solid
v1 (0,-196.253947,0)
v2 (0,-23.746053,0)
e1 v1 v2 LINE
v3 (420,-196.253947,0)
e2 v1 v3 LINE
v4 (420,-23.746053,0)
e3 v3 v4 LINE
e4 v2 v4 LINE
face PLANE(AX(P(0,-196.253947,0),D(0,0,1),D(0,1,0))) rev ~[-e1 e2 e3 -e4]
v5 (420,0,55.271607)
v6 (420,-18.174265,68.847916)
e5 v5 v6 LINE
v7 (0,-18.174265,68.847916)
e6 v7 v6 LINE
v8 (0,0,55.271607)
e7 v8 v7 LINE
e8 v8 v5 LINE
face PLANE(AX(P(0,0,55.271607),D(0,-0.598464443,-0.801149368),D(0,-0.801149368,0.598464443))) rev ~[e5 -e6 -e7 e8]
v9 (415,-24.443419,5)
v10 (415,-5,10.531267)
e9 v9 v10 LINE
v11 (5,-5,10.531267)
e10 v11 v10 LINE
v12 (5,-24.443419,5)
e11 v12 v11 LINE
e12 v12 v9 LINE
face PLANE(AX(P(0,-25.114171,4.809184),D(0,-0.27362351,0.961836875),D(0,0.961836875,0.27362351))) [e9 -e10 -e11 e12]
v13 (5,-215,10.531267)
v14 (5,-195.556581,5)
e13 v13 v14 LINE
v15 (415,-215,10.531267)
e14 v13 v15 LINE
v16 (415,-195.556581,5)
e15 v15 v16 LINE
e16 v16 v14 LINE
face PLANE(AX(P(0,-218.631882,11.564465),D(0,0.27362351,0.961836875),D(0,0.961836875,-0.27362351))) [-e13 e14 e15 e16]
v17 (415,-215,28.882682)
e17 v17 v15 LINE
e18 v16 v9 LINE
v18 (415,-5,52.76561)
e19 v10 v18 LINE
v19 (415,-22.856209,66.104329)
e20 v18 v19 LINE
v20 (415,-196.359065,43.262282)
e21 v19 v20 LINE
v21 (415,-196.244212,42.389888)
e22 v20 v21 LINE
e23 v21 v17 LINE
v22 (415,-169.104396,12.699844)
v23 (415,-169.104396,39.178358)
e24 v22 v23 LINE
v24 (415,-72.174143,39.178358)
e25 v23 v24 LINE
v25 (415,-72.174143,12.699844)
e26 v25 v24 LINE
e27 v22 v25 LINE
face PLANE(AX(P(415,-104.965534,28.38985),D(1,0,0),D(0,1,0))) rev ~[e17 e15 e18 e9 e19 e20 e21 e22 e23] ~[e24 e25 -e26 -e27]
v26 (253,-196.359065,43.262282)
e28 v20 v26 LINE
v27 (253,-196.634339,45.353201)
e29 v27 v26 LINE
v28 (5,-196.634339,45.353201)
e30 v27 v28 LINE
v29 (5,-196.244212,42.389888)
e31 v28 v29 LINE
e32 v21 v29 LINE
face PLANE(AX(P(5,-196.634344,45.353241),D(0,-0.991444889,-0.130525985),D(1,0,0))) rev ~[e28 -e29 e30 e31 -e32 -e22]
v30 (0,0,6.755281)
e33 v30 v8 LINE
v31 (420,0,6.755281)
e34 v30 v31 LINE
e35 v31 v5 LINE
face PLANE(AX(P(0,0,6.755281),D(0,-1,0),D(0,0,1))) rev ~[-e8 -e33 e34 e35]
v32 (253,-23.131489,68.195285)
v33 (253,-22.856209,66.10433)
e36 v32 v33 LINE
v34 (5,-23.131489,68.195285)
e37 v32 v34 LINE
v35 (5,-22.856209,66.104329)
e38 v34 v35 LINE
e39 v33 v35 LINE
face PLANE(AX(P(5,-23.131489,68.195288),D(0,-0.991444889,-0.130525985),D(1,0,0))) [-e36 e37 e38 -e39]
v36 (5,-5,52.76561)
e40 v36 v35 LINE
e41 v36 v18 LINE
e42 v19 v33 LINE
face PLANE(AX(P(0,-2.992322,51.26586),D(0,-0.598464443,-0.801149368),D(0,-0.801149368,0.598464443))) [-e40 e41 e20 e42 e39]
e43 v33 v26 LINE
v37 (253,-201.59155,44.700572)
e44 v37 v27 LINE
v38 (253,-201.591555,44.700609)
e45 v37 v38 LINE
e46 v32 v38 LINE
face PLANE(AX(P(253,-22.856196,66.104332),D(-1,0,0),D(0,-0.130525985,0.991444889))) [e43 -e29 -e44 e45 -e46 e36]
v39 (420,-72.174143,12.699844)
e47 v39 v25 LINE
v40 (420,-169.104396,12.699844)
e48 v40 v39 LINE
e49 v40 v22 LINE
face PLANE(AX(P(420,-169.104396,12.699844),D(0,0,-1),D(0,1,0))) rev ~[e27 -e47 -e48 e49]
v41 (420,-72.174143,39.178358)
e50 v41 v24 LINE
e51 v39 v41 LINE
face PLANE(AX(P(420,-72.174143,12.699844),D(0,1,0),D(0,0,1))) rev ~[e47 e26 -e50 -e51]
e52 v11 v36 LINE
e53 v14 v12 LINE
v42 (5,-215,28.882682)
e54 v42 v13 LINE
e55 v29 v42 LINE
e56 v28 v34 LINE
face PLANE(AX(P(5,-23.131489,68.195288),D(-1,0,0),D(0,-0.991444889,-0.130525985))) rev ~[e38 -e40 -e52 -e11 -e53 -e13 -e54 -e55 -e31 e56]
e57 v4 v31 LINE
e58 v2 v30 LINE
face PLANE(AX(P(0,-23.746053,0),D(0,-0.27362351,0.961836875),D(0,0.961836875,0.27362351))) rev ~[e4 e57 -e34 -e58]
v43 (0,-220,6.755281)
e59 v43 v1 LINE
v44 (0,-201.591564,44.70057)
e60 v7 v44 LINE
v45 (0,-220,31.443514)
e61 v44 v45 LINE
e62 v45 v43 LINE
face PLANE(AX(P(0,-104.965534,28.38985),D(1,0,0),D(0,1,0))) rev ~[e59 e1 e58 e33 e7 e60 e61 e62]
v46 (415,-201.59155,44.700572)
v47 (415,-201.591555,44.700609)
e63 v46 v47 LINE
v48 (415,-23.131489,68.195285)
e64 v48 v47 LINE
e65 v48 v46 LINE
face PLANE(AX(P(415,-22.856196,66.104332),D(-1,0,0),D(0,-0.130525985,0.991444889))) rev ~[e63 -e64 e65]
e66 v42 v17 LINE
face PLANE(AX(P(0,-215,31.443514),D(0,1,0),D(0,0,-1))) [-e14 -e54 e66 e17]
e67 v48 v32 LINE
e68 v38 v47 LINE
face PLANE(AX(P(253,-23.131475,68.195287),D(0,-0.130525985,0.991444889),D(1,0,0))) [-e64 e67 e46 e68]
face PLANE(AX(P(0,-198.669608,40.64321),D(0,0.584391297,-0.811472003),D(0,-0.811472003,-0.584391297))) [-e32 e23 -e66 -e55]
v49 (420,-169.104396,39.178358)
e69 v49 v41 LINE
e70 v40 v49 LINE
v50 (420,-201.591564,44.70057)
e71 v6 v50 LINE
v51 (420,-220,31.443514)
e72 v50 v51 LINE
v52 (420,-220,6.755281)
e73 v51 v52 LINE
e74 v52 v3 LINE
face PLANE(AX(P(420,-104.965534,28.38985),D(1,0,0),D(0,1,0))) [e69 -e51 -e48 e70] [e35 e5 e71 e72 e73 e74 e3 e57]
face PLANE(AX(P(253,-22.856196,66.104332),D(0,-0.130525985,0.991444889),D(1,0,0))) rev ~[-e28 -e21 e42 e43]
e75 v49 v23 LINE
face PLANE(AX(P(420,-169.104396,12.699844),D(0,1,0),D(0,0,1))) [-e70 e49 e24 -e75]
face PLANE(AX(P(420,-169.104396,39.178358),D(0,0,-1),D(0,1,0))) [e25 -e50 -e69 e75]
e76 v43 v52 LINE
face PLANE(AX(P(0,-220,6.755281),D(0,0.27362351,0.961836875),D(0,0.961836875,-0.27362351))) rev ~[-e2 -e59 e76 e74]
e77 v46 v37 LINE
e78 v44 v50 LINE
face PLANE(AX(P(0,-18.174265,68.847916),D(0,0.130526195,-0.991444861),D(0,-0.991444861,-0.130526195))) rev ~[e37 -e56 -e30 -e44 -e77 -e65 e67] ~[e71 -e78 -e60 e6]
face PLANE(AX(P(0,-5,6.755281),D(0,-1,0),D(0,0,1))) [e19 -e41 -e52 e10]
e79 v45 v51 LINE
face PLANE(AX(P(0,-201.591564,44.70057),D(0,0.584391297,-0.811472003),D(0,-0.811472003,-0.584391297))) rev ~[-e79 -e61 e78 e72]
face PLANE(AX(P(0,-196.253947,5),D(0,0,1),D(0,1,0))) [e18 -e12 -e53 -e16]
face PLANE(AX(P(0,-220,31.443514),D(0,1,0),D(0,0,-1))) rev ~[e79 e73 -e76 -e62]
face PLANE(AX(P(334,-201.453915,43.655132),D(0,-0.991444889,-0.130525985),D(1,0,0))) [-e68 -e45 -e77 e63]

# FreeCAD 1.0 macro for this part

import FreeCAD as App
import Part
import Sketcher
Q = App.Units.Quantity


def faces_at(feature, points):
    """Names of the faces that lie closest to the given points."""
    faces = feature.Shape.Faces
    near = lambda p: min(range(len(faces)), key=lambda i: faces[i].distToShape(Part.Vertex(*p))[0])
    return sorted({f"Face{near(p) + 1}" for p in points})


def add_polygon(sketch, points):
    """Adds a closed chain of lines whose ends are joined by coincident constraints."""
    first, n = sketch.GeometryCount, len(points)
    for a, b in zip(points, points[1:] + points[:1]):
        sketch.addGeometry(Part.LineSegment(App.Vector(*a, 0), App.Vector(*b, 0)), False)
    for i in range(n):
        sketch.addConstraint(Sketcher.Constraint("Coincident", first + i, 2, first + (i + 1) % n, 1))

doc = App.newDocument("Part")
params = doc.addObject("Spreadsheet::Sheet", "Params")
for row, (alias, value) in enumerate([
    ("sketch1_length", "185 mm"),
    ("pad1_length", "420 mm"),
    ("thickness_wall", "5 mm"),
    ("sketch2_width", "175 mm"),
    ("sketch2_height", "410.000001 mm"),
    ("pocket1_length", "13 mm"),
    ("pocket2_length", "8 mm"),
    ("sketch4_width", "162 mm"),
    ("pad2_length", "180 mm"),
], start=1):
    params.set(f"A{row}", alias)
    params.set(f"B{row}", "=" + value)
    params.setAlias(f"B{row}", alias)

body = doc.addObject("PartDesign::Body", "Body")

# Sketch on YZ plane
sketch1 = doc.addObject("Sketcher::SketchObject", "Sketch")
body.addObject(sketch1)
sketch1.AttachmentSupport = (doc.YZ_Plane, [""])
sketch1.MapMode = "FlatFace"
add_polygon(sketch1, [(-196.253947, 0), (-23.746053, 0), (0, 6.755281), (0, 55.271607), (-18.174265, 68.847916), (-201.591564, 44.70057), (-220, 31.443514), (-220, 6.755281)])  # lines 0-7
sketch1.addConstraint(Sketcher.Constraint("Horizontal", 0))
sketch1.addConstraint(Sketcher.Constraint("Vertical", 2))
sketch1.addConstraint(Sketcher.Constraint("Vertical", 6))
sketch1.addConstraint(Sketcher.Constraint("PointOnObject", 0, 2, -1))
sketch1.addConstraint(Sketcher.Constraint("PointOnObject", 1, 2, -2))
sketch1.addConstraint(Sketcher.Constraint("Horizontal", 1, 2, 6, 2))
sketch1.addConstraint(Sketcher.Constraint("Equal", 3, 5))
sketch1.addConstraint(Sketcher.Constraint("Equal", 1, 7))
sketch1.addConstraint(Sketcher.Constraint("Distance", 4, Q("185 mm")))
sketch1.addConstraint(Sketcher.Constraint("DistanceX", 5, 2, -1, 1, Q("220 mm")))
sketch1.addConstraint(Sketcher.Constraint("Angle", 4, Q("-172.5 deg")))
sketch1.addConstraint(Sketcher.Constraint("Angle", 1, Q("15.880001 deg")))
sketch1.addConstraint(Sketcher.Constraint("Angle", 3, Q("143.24 deg")))
sketch1.addConstraint(Sketcher.Constraint("Angle", 5, Q("-144.24 deg")))
sketch1.addConstraint(Sketcher.Constraint("DistanceX", 0, 1, 0, 2, Q("172.507894 mm")))
sketch1.addConstraint(Sketcher.Constraint("DistanceY", 2, 1, 2, 2, Q("48.516326 mm")))
sketch1.setExpression("Constraints[16]", "Params.sketch1_length")
pad1 = doc.addObject("PartDesign::Pad", "Pad")
body.addObject(pad1)
pad1.Profile = sketch1
pad1.setExpression("Length", "Params.pad1_length")
doc.recompute()

thickness = doc.addObject("PartDesign::Thickness", "Thickness")
body.addObject(thickness)
thickness.Base = (pad1, faces_at(pad1, [(210, -109.883, 56.774)]))
thickness.setExpression("Value", "Params.thickness_wall")
thickness.Reversed = True
thickness.Join = "Intersection"

# Sketch on an angled plane
sketch2 = doc.addObject("Sketcher::SketchObject", "Sketch001")
body.addObject(sketch2)
sketch2.Placement = App.Placement(App.Vector(0, -9.219212, 70.026871), App.Rotation(App.Vector(0, -0.991444889, -0.130525985), App.Vector(1.000000001, 0, 0), App.Vector(0, -0.130525985, 0.991444889), "ZXY"))
add_polygon(sketch2, [(14.032325, 415.000001), (14.032325, 5), (189.032325, 5), (189.032325, 415.000001)])  # lines 0-3
sketch2.addConstraint(Sketcher.Constraint("Vertical", 0))
sketch2.addConstraint(Sketcher.Constraint("Horizontal", 1))
sketch2.addConstraint(Sketcher.Constraint("Vertical", 2))
sketch2.addConstraint(Sketcher.Constraint("Horizontal", 3))
sketch2.addConstraint(Sketcher.Constraint("DistanceX", 1, 1, 1, 2, Q("175 mm")))
sketch2.addConstraint(Sketcher.Constraint("DistanceY", 0, 2, 0, 1, Q("410.000001 mm")))
sketch2.addConstraint(Sketcher.Constraint("DistanceY", -1, 1, 0, 2, Q("5 mm")))
sketch2.addConstraint(Sketcher.Constraint("DistanceX", -1, 1, 0, 2, Q("14.032325 mm")))
sketch2.setExpression("Constraints[8]", "Params.sketch2_width")
sketch2.setExpression("Constraints[9]", "Params.sketch2_height")
pocket1 = doc.addObject("PartDesign::Pocket", "Pocket")
body.addObject(pocket1)
pocket1.Profile = sketch2
pocket1.setExpression("Length", "Params.pocket1_length")

# Sketch on YZ plane
sketch3 = doc.addObject("Sketcher::SketchObject", "Sketch002")
body.addObject(sketch3)
sketch3.AttachmentSupport = (doc.YZ_Plane, [""])
sketch3.MapMode = "FlatFace"
sketch3.AttachmentOffset = App.Placement(App.Vector(0, 0, 420), App.Rotation())
add_polygon(sketch3, [(-169.104396, 39.178358), (-169.104396, 12.699844), (-72.174143, 12.699844), (-72.174143, 39.178358)])  # lines 0-3
sketch3.addConstraint(Sketcher.Constraint("Vertical", 0))
sketch3.addConstraint(Sketcher.Constraint("Horizontal", 1))
sketch3.addConstraint(Sketcher.Constraint("Vertical", 2))
sketch3.addConstraint(Sketcher.Constraint("Horizontal", 3))
sketch3.addConstraint(Sketcher.Constraint("DistanceX", 1, 1, 1, 2, Q("96.930253 mm")))
sketch3.addConstraint(Sketcher.Constraint("DistanceY", 0, 2, 0, 1, Q("26.478514 mm")))
sketch3.addConstraint(Sketcher.Constraint("DistanceY", -1, 1, 2, 2, Q("39.178358 mm")))
sketch3.addConstraint(Sketcher.Constraint("DistanceX", 0, 2, -1, 1, Q("169.104396 mm")))
pocket2 = doc.addObject("PartDesign::Pocket", "Pocket001")
body.addObject(pocket2)
pocket2.Profile = sketch3
pocket2.setExpression("Length", "Params.pocket2_length")

# Sketch on an angled plane
sketch4 = doc.addObject("Sketcher::SketchObject", "Sketch003")
body.addObject(sketch4)
sketch4.Placement = App.Placement(App.Vector(0, -13.912277, -1.831586), App.Rotation(App.Vector(1, 0, 0), App.Vector(0, -0.130525985, 0.991444889), App.Vector(0, -0.991444889, -0.130525985), "ZXY"))
add_polygon(sketch4, [(253, 70.63113), (253, 68.522132), (415, 68.522132), (415, 70.63113)])  # lines 0-3
sketch4.addConstraint(Sketcher.Constraint("Vertical", 0))
sketch4.addConstraint(Sketcher.Constraint("Horizontal", 1))
sketch4.addConstraint(Sketcher.Constraint("Vertical", 2))
sketch4.addConstraint(Sketcher.Constraint("Horizontal", 3))
sketch4.addConstraint(Sketcher.Constraint("DistanceX", 1, 1, 1, 2, Q("162 mm")))
sketch4.addConstraint(Sketcher.Constraint("DistanceX", -1, 1, 0, 2, Q("253 mm")))
sketch4.addConstraint(Sketcher.Constraint("DistanceY", 0, 2, 0, 1, Q("2.108998 mm")))
sketch4.addConstraint(Sketcher.Constraint("DistanceY", -1, 1, 2, 2, Q("70.63113 mm")))
sketch4.setExpression("Constraints[8]", "Params.sketch4_width")
pad2 = doc.addObject("PartDesign::Pad", "Pad001")
body.addObject(pad2)
pad2.Profile = sketch4
pad2.setExpression("Length", "Params.pad2_length")

doc.recompute()
